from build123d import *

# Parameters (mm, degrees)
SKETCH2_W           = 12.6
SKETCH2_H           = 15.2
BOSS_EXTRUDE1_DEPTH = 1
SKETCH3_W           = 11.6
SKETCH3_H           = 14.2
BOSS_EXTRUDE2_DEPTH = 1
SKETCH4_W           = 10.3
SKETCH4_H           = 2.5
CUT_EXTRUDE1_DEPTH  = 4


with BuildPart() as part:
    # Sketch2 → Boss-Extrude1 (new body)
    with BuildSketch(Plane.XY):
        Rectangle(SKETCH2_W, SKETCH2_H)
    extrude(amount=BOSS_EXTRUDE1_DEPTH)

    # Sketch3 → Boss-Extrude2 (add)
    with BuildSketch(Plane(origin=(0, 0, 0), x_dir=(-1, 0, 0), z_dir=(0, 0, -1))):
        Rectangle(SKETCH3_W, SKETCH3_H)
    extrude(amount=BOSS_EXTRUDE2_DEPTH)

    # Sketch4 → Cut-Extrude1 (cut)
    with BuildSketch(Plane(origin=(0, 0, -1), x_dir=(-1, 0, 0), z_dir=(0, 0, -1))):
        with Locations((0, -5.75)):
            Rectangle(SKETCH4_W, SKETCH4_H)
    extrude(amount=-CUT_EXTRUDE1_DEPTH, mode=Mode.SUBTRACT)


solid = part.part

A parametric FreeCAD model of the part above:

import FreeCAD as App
import Part
import Sketcher
from FreeCAD import Vector
Q = App.Units.Quantity


def add_polygon(sketch, points):
    """Adds a closed chain of lines whose ends are joined by coincident constraints."""
    first, n = sketch.GeometryCount, len(points)
    for a, b in zip(points, points[1:] + points[:1]):
        sketch.addGeometry(Part.LineSegment(App.Vector(*a, 0), App.Vector(*b, 0)), False)
    for i in range(n):
        sketch.addConstraint(Sketcher.Constraint("Coincident", first + i, 2, first + (i + 1) % n, 1))

doc = App.newDocument("Part")
body = doc.addObject("PartDesign::Body", "Body")

sketch1 = body.newObject("Sketcher::SketchObject", "Sketch")
sketch1.AttachmentSupport = (doc.getObject("XY_Plane"), [""])
sketch1.MapMode = "FlatFace"
add_polygon(sketch1, [(-6, 8), (-6, -8), (6, -8), (6, 8)])
sketch1.addConstraint([
    Sketcher.Constraint("Vertical", 0),
    Sketcher.Constraint("Horizontal", 1),
    Sketcher.Constraint("Vertical", 2),
    Sketcher.Constraint("Horizontal", 3),
    Sketcher.Constraint("Symmetric", 0, 2, 2, 2, -1, 1),
    Sketcher.Constraint("DistanceX", 1, 1, 1, 2, Q("12.6 mm")),
    Sketcher.Constraint("DistanceY", 0, 2, 0, 1, Q("15.2 mm")),
])
pad1 = body.newObject("PartDesign::Pad", "Pad")
pad1.Profile = sketch1
pad1.Length = 1

sketch2 = body.newObject("Sketcher::SketchObject", "Sketch001")
sketch2.AttachmentSupport = (doc.getObject("XY_Plane"), [""])
sketch2.MapMode = "FlatFace"
add_polygon(sketch2, [(6, 7), (6, -7), (-6, -7), (-6, 7)])
sketch2.addConstraint([
    Sketcher.Constraint("Vertical", 0),
    Sketcher.Constraint("Horizontal", 1),
    Sketcher.Constraint("Vertical", 2),
    Sketcher.Constraint("Horizontal", 3),
    Sketcher.Constraint("Symmetric", 0, 2, 2, 2, -1, 1),
    Sketcher.Constraint("DistanceX", 1, 2, 1, 1, Q("11.6 mm")),
    Sketcher.Constraint("DistanceY", 0, 2, 0, 1, Q("14.2 mm")),
])
pad2 = body.newObject("PartDesign::Pad", "Pad001")
pad2.Profile = sketch2
pad2.Length = 1
pad2.Reversed = True

sketch3 = body.newObject("Sketcher::SketchObject", "Sketch002")
sketch3.AttachmentSupport = (doc.getObject("XY_Plane"), [""])
sketch3.MapMode = "FlatFace"
sketch3.AttachmentOffset = App.Placement(Vector(0, 0, -1), App.Rotation())
add_polygon(sketch3, [(5.2, -4.5), (5.2, -7), (-5.2, -7), (-5.2, -4.5)])
sketch3.addConstraint([
    Sketcher.Constraint("Vertical", 0),
    Sketcher.Constraint("Horizontal", 1),
    Sketcher.Constraint("Vertical", 2),
    Sketcher.Constraint("Horizontal", 3),
    Sketcher.Constraint("DistanceX", 1, 2, 1, 1, Q("10.3 mm")),
    Sketcher.Constraint("DistanceY", 0, 2, 0, 1, Q("2.5 mm")),
    Sketcher.Constraint("DistanceY", 0, 2, -1, 1, Q("7 mm")),
    Sketcher.Constraint("DistanceX", -1, 1, 0, 2, Q("5.15 mm")),
])
pocket1 = body.newObject("PartDesign::Pocket", "Pocket")
pocket1.Profile = sketch3
pocket1.Length = 4
pocket1.Reversed = True

doc.recompute()
